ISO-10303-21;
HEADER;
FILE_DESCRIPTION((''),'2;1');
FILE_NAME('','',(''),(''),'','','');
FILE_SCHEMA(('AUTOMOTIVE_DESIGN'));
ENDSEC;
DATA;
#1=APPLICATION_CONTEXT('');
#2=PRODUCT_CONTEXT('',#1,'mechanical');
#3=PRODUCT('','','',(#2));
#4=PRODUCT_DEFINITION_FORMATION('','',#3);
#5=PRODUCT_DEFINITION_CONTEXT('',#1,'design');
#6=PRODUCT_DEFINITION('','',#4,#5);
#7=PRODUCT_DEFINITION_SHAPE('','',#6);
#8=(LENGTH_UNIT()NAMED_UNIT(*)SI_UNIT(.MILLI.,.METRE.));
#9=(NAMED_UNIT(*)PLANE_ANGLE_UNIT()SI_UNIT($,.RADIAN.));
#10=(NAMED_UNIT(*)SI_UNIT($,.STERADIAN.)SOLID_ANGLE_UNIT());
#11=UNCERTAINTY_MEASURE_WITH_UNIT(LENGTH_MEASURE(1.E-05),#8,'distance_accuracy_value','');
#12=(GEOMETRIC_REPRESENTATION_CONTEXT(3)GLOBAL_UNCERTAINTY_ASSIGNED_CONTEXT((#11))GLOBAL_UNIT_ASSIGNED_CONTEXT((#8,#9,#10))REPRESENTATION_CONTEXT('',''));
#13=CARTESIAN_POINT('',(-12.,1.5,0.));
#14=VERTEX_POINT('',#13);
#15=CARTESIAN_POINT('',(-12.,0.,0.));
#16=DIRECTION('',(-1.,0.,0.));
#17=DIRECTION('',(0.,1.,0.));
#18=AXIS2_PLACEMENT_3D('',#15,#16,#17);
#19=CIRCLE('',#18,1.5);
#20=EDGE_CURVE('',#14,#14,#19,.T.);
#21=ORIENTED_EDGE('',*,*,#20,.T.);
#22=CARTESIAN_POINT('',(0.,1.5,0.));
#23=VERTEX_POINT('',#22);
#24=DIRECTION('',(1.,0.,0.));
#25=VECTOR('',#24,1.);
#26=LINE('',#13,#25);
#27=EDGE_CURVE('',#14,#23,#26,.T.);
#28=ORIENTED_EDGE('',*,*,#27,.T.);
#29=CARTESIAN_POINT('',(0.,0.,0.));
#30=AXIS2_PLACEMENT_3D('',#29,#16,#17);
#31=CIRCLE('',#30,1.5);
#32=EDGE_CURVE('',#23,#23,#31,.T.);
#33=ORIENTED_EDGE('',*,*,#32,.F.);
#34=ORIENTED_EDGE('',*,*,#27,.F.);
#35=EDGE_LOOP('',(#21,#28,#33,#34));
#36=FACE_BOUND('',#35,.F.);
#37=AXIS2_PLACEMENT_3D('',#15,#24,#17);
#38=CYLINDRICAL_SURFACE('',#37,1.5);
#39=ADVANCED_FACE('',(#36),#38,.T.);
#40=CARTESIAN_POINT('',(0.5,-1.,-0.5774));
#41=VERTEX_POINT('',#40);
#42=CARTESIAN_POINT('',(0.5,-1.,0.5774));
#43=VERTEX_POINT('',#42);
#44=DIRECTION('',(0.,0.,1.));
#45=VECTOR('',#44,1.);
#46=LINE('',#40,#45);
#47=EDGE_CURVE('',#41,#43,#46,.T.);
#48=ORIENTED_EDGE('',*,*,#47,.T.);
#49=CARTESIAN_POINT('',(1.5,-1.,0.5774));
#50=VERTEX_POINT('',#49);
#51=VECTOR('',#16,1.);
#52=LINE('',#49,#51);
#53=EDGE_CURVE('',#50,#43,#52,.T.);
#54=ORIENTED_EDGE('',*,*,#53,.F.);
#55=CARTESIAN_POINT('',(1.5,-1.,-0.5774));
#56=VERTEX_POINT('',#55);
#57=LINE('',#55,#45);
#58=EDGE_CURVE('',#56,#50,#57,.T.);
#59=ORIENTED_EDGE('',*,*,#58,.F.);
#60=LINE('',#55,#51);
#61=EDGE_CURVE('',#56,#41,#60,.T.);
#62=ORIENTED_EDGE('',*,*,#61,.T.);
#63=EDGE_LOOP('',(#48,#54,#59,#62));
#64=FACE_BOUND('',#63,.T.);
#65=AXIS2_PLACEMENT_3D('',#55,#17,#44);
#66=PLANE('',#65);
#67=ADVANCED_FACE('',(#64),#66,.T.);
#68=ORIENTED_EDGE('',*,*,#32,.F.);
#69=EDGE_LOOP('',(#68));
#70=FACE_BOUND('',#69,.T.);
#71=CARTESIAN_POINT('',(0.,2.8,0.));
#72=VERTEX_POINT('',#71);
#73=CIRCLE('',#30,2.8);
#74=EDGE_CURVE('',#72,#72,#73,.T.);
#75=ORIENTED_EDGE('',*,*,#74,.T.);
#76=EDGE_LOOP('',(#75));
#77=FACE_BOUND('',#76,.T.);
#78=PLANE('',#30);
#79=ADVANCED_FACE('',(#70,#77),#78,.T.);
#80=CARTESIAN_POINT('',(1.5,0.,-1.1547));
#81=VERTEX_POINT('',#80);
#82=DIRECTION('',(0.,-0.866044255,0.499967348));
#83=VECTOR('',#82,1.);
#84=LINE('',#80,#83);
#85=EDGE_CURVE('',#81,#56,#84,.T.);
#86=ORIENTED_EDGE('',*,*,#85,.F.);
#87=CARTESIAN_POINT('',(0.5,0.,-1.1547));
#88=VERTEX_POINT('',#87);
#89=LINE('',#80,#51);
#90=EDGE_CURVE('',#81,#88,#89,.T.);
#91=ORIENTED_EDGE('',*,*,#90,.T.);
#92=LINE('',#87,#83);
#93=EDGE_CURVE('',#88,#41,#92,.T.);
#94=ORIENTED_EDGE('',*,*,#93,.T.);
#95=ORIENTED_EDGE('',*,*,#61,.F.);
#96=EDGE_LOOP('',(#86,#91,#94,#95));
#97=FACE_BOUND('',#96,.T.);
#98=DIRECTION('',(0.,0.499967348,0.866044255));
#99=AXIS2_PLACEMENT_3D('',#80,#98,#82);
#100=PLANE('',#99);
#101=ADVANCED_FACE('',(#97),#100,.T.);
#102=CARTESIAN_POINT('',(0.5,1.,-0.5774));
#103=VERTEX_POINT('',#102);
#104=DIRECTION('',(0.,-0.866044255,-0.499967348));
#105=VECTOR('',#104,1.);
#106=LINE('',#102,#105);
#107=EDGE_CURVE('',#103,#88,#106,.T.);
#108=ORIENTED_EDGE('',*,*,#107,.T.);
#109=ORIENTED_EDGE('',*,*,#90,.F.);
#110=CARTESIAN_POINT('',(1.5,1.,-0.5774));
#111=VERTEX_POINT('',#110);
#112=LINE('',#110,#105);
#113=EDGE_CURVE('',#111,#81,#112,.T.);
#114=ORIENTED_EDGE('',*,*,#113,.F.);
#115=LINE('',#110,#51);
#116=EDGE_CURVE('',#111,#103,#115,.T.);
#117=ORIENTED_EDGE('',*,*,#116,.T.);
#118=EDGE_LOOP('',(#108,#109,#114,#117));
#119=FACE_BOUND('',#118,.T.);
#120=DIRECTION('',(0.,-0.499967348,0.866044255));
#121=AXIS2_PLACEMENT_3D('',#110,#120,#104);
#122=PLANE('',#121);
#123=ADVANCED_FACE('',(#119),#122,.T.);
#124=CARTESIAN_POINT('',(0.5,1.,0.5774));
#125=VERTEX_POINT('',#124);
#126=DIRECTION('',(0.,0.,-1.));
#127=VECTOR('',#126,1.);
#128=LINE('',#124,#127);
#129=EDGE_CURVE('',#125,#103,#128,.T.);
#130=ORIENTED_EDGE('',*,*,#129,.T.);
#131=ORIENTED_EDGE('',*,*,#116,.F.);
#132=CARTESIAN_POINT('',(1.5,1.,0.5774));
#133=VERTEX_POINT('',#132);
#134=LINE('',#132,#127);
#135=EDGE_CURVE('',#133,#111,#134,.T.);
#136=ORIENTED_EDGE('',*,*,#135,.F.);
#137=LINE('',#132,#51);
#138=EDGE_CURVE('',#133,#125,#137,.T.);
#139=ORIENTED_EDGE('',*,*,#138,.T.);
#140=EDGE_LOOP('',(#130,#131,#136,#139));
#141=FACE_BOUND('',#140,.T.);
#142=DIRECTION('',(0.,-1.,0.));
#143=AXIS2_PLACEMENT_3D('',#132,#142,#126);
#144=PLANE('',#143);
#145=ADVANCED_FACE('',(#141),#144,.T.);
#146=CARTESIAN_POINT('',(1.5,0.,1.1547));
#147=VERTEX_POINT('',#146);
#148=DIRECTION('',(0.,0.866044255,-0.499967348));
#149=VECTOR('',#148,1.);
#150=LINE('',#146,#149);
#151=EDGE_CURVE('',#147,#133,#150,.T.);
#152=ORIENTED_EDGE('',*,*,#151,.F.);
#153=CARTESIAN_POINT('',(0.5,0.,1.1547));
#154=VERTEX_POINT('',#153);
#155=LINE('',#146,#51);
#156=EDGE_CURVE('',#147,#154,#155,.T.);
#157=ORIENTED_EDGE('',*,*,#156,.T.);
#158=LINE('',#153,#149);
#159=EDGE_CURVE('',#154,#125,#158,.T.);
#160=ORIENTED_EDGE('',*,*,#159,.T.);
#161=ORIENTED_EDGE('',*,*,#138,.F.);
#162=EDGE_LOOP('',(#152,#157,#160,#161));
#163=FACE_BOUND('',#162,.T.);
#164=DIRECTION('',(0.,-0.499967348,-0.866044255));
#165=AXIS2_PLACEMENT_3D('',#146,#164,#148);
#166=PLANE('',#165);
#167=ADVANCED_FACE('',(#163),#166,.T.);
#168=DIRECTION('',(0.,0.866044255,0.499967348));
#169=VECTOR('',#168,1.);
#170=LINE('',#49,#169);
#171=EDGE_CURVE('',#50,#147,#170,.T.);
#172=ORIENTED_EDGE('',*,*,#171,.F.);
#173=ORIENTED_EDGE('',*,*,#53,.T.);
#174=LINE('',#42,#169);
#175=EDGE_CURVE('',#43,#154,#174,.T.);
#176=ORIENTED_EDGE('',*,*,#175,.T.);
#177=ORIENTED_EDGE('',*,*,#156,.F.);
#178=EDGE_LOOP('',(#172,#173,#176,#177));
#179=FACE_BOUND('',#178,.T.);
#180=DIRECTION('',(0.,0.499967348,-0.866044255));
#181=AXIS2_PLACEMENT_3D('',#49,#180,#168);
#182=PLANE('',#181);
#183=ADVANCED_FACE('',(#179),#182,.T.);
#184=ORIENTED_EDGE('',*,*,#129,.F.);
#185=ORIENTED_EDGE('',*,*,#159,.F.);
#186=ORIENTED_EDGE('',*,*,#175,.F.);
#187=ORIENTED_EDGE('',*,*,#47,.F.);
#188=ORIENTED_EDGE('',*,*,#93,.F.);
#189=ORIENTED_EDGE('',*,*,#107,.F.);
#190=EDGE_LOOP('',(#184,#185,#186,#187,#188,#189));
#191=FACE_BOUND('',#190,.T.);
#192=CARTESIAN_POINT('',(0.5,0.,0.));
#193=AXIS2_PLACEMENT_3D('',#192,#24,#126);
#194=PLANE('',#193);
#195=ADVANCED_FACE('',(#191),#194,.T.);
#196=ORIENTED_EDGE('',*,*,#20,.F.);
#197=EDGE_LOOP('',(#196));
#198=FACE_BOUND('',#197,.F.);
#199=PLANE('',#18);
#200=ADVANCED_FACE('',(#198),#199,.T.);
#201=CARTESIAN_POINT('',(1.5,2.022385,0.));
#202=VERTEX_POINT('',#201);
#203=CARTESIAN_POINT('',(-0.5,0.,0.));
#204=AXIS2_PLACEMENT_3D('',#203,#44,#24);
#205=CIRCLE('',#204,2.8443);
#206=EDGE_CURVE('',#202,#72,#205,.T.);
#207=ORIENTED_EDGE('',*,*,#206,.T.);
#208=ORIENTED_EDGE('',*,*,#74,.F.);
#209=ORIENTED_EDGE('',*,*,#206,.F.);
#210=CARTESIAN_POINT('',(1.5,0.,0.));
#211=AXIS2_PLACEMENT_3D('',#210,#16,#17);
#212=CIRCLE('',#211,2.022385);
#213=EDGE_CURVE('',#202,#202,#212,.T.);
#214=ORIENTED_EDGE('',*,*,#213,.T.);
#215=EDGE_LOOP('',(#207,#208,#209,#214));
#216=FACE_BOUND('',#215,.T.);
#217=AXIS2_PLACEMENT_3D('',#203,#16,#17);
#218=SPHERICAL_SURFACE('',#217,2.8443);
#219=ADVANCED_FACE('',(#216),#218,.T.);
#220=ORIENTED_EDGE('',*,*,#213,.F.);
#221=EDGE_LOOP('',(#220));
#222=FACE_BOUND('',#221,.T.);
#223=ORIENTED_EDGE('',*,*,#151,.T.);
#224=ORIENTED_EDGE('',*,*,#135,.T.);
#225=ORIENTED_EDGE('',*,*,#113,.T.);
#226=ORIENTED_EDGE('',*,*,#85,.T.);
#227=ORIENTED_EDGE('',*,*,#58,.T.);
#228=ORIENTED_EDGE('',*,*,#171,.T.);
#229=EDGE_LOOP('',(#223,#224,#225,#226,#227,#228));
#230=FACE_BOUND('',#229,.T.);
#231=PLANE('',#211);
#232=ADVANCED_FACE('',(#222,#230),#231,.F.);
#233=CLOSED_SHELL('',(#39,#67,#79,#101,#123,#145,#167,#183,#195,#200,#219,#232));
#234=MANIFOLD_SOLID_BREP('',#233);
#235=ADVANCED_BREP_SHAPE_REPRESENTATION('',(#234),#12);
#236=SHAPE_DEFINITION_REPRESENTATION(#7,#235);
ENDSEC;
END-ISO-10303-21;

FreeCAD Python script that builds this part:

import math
import FreeCAD as App
import Part
import Sketcher

V = App.Vector
Q = App.Units.Quantity


def add_polygon(sketch, points):
    """Adds a closed chain of lines whose ends are joined by coincident constraints."""
    first, n = sketch.GeometryCount, len(points)
    for a, b in zip(points, points[1:] + points[:1]):
        sketch.addGeometry(Part.LineSegment(App.Vector(*a, 0), App.Vector(*b, 0)), False)
    for i in range(n):
        sketch.addConstraint(Sketcher.Constraint("Coincident", first + i, 2, first + (i + 1) % n, 1))

doc = App.newDocument("Part")
params = doc.addObject("Spreadsheet::Sheet", "Params")
for row, (alias, value) in enumerate([
    ("sketch1_width", "12 mm"),
    ("sketch1_height", "1.5 mm"),
    ("revolution_angle", "360 deg"),
    ("pocket1_length", "1 mm"),
], start=1):
    params.set(f"A{row}", alias)
    params.set(f"B{row}", "=" + value)
    params.setAlias(f"B{row}", alias)

body = doc.addObject("PartDesign::Body", "Body")

# Sketch on XY plane
sketch1 = body.newObject("Sketcher::SketchObject", "Sketch")
sketch1.AttachmentSupport = (doc.getObject("XY_Plane"), [""])
sketch1.MapMode = "FlatFace"
sketch1.addGeometry(Part.LineSegment(V(1.5, 0, 0), V(1.5, 2, 0)), False)
sketch1.addGeometry(Part.ArcOfCircle(Part.Circle(V(-0.5, 0, 0), V(0, 0, 1), 2.8), math.radians(45), math.radians(80)), False)
sketch1.addGeometry(Part.LineSegment(V(0, 2.8, 0), V(0, 1.5, 0)), False)
sketch1.addGeometry(Part.LineSegment(V(0, 1.5, 0), V(-12, 1.5, 0)), False)
sketch1.addGeometry(Part.LineSegment(V(-12, 1.5, 0), V(-12, 0, 0)), False)
sketch1.addGeometry(Part.LineSegment(V(-12, 0, 0), V(1.5, 0, 0)), False)
sketch1.addConstraint(Sketcher.Constraint("Coincident", 0, 2, 1, 1))
sketch1.addConstraint(Sketcher.Constraint("Coincident", 1, 2, 2, 1))
sketch1.addConstraint(Sketcher.Constraint("Coincident", 2, 2, 3, 1))
sketch1.addConstraint(Sketcher.Constraint("Coincident", 3, 2, 4, 1))
sketch1.addConstraint(Sketcher.Constraint("Coincident", 4, 2, 5, 1))
sketch1.addConstraint(Sketcher.Constraint("Coincident", 5, 2, 0, 1))
sketch1.addConstraint(Sketcher.Constraint("Vertical", 0))
sketch1.addConstraint(Sketcher.Constraint("Vertical", 2))
sketch1.addConstraint(Sketcher.Constraint("Horizontal", 3))
sketch1.addConstraint(Sketcher.Constraint("Vertical", 4))
sketch1.addConstraint(Sketcher.Constraint("Horizontal", 5))
sketch1.addConstraint(Sketcher.Constraint("PointOnObject", 1, 3, -1))
sketch1.addConstraint(Sketcher.Constraint("PointOnObject", 1, 2, -2))
sketch1.addConstraint(Sketcher.Constraint("PointOnObject", 4, 2, -1))
sketch1.addConstraint(Sketcher.Constraint("DistanceX", 3, 2, 3, 1, Q("12 mm")))
sketch1.addConstraint(Sketcher.Constraint("DistanceY", 4, 2, 4, 1, Q("1.5 mm")))
sketch1.addConstraint(Sketcher.Constraint("DistanceX", 1, 3, -1, 1, Q("0.5 mm")))
sketch1.addConstraint(Sketcher.Constraint("DistanceX", -1, 1, 0, 2, Q("1.5 mm")))
sketch1.addConstraint(Sketcher.Constraint("DistanceY", -1, 1, 1, 2, Q("2.8 mm")))
sketch1.setExpression("Constraints[14]", "Params.sketch1_width")
sketch1.setExpression("Constraints[15]", "Params.sketch1_height")
revolution = body.newObject("PartDesign::Revolution", "Revolution")
revolution.Profile = sketch1
revolution.ReferenceAxis = (sketch1, ["H_Axis"])
revolution.setExpression("Angle", "Params.revolution_angle")

# Sketch on YZ plane
sketch2 = body.newObject("Sketcher::SketchObject", "Sketch001")
sketch2.AttachmentSupport = (doc.getObject("YZ_Plane"), [""])
sketch2.MapMode = "FlatFace"
sketch2.AttachmentOffset = App.Placement(V(0, 0, 1.5), App.Rotation())
add_polygon(sketch2, [(0, -1.2), (1, -0.6), (1, 0.6), (0, 1.2), (-1, 0.6), (-1, -0.6)])  # lines 0-5
sketch2.addConstraint(Sketcher.Constraint("Vertical", 1))
sketch2.addConstraint(Sketcher.Constraint("Vertical", 4))
sketch2.addConstraint(Sketcher.Constraint("Symmetric", 0, 2, 3, 2, -1, 1))
sketch2.addConstraint(Sketcher.Constraint("Symmetric", 2, 2, 5, 2, -1, 1))
sketch2.addConstraint(Sketcher.Constraint("PointOnObject", 2, 2, -2))
sketch2.addConstraint(Sketcher.Constraint("Parallel", 2, 5))
sketch2.addConstraint(Sketcher.Constraint("Horizontal", 1, 2, 3, 2))
sketch2.addConstraint(Sketcher.Constraint("DistanceX", 3, 2, 1, 2, Q("2 mm")))
sketch2.addConstraint(Sketcher.Constraint("DistanceY", 1, 1, 1, 2, Q("1.1548 mm")))
sketch2.addConstraint(Sketcher.Constraint("DistanceY", 0, 2, 2, 2, Q("1.732 mm")))
pocket1 = body.newObject("PartDesign::Pocket", "Pocket")
pocket1.Profile = sketch2
pocket1.setExpression("Length", "Params.pocket1_length")

doc.recompute()
